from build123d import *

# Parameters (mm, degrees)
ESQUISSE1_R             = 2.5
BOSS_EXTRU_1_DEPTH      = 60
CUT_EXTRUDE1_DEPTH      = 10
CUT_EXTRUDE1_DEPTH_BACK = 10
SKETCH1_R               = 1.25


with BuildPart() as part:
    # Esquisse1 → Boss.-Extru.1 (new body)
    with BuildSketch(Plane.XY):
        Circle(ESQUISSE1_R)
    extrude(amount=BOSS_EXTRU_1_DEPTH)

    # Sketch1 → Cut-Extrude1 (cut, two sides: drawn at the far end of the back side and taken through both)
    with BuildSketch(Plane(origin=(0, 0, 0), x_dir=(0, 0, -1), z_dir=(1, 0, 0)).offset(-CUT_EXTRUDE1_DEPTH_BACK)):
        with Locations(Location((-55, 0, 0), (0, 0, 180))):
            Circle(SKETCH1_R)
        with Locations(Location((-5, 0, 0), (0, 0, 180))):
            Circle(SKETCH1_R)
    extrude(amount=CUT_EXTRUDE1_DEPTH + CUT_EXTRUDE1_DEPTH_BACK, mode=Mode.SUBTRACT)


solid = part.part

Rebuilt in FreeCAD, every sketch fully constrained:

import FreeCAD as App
import Part
import Sketcher
from FreeCAD import Vector

doc = App.newDocument("Part")
params = doc.addObject("Spreadsheet::Sheet", "Params")
for row, (alias, value) in enumerate([
    ("sketch1_diameter", "5 mm"),
    ("pad1_length", "60 mm"),
    ("sketch2_diameter", "2.5 mm"),
], start=1):
    params.set(f"A{row}", alias)
    params.set(f"B{row}", "=" + value)
    params.setAlias(f"B{row}", alias)

body = doc.addObject("PartDesign::Body", "Body")

# Sketch on XY plane
sketch1 = body.newObject("Sketcher::SketchObject", "Sketch")
sketch1.AttachmentSupport = (doc.getObject("XY_Plane"), [""])
sketch1.MapMode = "FlatFace"
sketch1.addGeometry(Part.Circle(Vector(0, 0, 0), Vector(0, 0, 1), 2.5), False)
sketch1.addConstraint(Sketcher.Constraint("Coincident", 0, 3, -1, 1))
sketch1.addConstraint(Sketcher.Constraint("Diameter", 0, 5.0))
sketch1.setExpression("Constraints[1]", "Params.sketch1_diameter")
pad1 = body.newObject("PartDesign::Pad", "Pad")
pad1.Profile = sketch1
pad1.setExpression("Length", "Params.pad1_length")

# Sketch on YZ plane
sketch2 = body.newObject("Sketcher::SketchObject", "Sketch001")
sketch2.AttachmentSupport = (doc.getObject("YZ_Plane"), [""])
sketch2.MapMode = "FlatFace"
sketch2.addGeometry(Part.Circle(Vector(0, 55, 0), Vector(0, 0, 1), 1.2), False)
sketch2.addGeometry(Part.Circle(Vector(0, 5, 0), Vector(0, 0, 1), 1.2), False)
sketch2.addConstraint(Sketcher.Constraint("Equal", 0, 1))
sketch2.addConstraint(Sketcher.Constraint("PointOnObject", 0, 3, -2))
sketch2.addConstraint(Sketcher.Constraint("PointOnObject", 1, 3, -2))
sketch2.addConstraint(Sketcher.Constraint("Diameter", 0, 2.5))
sketch2.addConstraint(Sketcher.Constraint("DistanceY", -1, 1, 0, 3, 55.0))
sketch2.addConstraint(Sketcher.Constraint("DistanceY", -1, 1, 1, 3, 5.0))
sketch2.setExpression("Constraints[3]", "Params.sketch2_diameter")
pocket1 = body.newObject("PartDesign::Pocket", "Pocket")
pocket1.Profile = sketch2
pocket1.Type = "ThroughAll"
pocket1.Midplane = True

doc.recompute()
